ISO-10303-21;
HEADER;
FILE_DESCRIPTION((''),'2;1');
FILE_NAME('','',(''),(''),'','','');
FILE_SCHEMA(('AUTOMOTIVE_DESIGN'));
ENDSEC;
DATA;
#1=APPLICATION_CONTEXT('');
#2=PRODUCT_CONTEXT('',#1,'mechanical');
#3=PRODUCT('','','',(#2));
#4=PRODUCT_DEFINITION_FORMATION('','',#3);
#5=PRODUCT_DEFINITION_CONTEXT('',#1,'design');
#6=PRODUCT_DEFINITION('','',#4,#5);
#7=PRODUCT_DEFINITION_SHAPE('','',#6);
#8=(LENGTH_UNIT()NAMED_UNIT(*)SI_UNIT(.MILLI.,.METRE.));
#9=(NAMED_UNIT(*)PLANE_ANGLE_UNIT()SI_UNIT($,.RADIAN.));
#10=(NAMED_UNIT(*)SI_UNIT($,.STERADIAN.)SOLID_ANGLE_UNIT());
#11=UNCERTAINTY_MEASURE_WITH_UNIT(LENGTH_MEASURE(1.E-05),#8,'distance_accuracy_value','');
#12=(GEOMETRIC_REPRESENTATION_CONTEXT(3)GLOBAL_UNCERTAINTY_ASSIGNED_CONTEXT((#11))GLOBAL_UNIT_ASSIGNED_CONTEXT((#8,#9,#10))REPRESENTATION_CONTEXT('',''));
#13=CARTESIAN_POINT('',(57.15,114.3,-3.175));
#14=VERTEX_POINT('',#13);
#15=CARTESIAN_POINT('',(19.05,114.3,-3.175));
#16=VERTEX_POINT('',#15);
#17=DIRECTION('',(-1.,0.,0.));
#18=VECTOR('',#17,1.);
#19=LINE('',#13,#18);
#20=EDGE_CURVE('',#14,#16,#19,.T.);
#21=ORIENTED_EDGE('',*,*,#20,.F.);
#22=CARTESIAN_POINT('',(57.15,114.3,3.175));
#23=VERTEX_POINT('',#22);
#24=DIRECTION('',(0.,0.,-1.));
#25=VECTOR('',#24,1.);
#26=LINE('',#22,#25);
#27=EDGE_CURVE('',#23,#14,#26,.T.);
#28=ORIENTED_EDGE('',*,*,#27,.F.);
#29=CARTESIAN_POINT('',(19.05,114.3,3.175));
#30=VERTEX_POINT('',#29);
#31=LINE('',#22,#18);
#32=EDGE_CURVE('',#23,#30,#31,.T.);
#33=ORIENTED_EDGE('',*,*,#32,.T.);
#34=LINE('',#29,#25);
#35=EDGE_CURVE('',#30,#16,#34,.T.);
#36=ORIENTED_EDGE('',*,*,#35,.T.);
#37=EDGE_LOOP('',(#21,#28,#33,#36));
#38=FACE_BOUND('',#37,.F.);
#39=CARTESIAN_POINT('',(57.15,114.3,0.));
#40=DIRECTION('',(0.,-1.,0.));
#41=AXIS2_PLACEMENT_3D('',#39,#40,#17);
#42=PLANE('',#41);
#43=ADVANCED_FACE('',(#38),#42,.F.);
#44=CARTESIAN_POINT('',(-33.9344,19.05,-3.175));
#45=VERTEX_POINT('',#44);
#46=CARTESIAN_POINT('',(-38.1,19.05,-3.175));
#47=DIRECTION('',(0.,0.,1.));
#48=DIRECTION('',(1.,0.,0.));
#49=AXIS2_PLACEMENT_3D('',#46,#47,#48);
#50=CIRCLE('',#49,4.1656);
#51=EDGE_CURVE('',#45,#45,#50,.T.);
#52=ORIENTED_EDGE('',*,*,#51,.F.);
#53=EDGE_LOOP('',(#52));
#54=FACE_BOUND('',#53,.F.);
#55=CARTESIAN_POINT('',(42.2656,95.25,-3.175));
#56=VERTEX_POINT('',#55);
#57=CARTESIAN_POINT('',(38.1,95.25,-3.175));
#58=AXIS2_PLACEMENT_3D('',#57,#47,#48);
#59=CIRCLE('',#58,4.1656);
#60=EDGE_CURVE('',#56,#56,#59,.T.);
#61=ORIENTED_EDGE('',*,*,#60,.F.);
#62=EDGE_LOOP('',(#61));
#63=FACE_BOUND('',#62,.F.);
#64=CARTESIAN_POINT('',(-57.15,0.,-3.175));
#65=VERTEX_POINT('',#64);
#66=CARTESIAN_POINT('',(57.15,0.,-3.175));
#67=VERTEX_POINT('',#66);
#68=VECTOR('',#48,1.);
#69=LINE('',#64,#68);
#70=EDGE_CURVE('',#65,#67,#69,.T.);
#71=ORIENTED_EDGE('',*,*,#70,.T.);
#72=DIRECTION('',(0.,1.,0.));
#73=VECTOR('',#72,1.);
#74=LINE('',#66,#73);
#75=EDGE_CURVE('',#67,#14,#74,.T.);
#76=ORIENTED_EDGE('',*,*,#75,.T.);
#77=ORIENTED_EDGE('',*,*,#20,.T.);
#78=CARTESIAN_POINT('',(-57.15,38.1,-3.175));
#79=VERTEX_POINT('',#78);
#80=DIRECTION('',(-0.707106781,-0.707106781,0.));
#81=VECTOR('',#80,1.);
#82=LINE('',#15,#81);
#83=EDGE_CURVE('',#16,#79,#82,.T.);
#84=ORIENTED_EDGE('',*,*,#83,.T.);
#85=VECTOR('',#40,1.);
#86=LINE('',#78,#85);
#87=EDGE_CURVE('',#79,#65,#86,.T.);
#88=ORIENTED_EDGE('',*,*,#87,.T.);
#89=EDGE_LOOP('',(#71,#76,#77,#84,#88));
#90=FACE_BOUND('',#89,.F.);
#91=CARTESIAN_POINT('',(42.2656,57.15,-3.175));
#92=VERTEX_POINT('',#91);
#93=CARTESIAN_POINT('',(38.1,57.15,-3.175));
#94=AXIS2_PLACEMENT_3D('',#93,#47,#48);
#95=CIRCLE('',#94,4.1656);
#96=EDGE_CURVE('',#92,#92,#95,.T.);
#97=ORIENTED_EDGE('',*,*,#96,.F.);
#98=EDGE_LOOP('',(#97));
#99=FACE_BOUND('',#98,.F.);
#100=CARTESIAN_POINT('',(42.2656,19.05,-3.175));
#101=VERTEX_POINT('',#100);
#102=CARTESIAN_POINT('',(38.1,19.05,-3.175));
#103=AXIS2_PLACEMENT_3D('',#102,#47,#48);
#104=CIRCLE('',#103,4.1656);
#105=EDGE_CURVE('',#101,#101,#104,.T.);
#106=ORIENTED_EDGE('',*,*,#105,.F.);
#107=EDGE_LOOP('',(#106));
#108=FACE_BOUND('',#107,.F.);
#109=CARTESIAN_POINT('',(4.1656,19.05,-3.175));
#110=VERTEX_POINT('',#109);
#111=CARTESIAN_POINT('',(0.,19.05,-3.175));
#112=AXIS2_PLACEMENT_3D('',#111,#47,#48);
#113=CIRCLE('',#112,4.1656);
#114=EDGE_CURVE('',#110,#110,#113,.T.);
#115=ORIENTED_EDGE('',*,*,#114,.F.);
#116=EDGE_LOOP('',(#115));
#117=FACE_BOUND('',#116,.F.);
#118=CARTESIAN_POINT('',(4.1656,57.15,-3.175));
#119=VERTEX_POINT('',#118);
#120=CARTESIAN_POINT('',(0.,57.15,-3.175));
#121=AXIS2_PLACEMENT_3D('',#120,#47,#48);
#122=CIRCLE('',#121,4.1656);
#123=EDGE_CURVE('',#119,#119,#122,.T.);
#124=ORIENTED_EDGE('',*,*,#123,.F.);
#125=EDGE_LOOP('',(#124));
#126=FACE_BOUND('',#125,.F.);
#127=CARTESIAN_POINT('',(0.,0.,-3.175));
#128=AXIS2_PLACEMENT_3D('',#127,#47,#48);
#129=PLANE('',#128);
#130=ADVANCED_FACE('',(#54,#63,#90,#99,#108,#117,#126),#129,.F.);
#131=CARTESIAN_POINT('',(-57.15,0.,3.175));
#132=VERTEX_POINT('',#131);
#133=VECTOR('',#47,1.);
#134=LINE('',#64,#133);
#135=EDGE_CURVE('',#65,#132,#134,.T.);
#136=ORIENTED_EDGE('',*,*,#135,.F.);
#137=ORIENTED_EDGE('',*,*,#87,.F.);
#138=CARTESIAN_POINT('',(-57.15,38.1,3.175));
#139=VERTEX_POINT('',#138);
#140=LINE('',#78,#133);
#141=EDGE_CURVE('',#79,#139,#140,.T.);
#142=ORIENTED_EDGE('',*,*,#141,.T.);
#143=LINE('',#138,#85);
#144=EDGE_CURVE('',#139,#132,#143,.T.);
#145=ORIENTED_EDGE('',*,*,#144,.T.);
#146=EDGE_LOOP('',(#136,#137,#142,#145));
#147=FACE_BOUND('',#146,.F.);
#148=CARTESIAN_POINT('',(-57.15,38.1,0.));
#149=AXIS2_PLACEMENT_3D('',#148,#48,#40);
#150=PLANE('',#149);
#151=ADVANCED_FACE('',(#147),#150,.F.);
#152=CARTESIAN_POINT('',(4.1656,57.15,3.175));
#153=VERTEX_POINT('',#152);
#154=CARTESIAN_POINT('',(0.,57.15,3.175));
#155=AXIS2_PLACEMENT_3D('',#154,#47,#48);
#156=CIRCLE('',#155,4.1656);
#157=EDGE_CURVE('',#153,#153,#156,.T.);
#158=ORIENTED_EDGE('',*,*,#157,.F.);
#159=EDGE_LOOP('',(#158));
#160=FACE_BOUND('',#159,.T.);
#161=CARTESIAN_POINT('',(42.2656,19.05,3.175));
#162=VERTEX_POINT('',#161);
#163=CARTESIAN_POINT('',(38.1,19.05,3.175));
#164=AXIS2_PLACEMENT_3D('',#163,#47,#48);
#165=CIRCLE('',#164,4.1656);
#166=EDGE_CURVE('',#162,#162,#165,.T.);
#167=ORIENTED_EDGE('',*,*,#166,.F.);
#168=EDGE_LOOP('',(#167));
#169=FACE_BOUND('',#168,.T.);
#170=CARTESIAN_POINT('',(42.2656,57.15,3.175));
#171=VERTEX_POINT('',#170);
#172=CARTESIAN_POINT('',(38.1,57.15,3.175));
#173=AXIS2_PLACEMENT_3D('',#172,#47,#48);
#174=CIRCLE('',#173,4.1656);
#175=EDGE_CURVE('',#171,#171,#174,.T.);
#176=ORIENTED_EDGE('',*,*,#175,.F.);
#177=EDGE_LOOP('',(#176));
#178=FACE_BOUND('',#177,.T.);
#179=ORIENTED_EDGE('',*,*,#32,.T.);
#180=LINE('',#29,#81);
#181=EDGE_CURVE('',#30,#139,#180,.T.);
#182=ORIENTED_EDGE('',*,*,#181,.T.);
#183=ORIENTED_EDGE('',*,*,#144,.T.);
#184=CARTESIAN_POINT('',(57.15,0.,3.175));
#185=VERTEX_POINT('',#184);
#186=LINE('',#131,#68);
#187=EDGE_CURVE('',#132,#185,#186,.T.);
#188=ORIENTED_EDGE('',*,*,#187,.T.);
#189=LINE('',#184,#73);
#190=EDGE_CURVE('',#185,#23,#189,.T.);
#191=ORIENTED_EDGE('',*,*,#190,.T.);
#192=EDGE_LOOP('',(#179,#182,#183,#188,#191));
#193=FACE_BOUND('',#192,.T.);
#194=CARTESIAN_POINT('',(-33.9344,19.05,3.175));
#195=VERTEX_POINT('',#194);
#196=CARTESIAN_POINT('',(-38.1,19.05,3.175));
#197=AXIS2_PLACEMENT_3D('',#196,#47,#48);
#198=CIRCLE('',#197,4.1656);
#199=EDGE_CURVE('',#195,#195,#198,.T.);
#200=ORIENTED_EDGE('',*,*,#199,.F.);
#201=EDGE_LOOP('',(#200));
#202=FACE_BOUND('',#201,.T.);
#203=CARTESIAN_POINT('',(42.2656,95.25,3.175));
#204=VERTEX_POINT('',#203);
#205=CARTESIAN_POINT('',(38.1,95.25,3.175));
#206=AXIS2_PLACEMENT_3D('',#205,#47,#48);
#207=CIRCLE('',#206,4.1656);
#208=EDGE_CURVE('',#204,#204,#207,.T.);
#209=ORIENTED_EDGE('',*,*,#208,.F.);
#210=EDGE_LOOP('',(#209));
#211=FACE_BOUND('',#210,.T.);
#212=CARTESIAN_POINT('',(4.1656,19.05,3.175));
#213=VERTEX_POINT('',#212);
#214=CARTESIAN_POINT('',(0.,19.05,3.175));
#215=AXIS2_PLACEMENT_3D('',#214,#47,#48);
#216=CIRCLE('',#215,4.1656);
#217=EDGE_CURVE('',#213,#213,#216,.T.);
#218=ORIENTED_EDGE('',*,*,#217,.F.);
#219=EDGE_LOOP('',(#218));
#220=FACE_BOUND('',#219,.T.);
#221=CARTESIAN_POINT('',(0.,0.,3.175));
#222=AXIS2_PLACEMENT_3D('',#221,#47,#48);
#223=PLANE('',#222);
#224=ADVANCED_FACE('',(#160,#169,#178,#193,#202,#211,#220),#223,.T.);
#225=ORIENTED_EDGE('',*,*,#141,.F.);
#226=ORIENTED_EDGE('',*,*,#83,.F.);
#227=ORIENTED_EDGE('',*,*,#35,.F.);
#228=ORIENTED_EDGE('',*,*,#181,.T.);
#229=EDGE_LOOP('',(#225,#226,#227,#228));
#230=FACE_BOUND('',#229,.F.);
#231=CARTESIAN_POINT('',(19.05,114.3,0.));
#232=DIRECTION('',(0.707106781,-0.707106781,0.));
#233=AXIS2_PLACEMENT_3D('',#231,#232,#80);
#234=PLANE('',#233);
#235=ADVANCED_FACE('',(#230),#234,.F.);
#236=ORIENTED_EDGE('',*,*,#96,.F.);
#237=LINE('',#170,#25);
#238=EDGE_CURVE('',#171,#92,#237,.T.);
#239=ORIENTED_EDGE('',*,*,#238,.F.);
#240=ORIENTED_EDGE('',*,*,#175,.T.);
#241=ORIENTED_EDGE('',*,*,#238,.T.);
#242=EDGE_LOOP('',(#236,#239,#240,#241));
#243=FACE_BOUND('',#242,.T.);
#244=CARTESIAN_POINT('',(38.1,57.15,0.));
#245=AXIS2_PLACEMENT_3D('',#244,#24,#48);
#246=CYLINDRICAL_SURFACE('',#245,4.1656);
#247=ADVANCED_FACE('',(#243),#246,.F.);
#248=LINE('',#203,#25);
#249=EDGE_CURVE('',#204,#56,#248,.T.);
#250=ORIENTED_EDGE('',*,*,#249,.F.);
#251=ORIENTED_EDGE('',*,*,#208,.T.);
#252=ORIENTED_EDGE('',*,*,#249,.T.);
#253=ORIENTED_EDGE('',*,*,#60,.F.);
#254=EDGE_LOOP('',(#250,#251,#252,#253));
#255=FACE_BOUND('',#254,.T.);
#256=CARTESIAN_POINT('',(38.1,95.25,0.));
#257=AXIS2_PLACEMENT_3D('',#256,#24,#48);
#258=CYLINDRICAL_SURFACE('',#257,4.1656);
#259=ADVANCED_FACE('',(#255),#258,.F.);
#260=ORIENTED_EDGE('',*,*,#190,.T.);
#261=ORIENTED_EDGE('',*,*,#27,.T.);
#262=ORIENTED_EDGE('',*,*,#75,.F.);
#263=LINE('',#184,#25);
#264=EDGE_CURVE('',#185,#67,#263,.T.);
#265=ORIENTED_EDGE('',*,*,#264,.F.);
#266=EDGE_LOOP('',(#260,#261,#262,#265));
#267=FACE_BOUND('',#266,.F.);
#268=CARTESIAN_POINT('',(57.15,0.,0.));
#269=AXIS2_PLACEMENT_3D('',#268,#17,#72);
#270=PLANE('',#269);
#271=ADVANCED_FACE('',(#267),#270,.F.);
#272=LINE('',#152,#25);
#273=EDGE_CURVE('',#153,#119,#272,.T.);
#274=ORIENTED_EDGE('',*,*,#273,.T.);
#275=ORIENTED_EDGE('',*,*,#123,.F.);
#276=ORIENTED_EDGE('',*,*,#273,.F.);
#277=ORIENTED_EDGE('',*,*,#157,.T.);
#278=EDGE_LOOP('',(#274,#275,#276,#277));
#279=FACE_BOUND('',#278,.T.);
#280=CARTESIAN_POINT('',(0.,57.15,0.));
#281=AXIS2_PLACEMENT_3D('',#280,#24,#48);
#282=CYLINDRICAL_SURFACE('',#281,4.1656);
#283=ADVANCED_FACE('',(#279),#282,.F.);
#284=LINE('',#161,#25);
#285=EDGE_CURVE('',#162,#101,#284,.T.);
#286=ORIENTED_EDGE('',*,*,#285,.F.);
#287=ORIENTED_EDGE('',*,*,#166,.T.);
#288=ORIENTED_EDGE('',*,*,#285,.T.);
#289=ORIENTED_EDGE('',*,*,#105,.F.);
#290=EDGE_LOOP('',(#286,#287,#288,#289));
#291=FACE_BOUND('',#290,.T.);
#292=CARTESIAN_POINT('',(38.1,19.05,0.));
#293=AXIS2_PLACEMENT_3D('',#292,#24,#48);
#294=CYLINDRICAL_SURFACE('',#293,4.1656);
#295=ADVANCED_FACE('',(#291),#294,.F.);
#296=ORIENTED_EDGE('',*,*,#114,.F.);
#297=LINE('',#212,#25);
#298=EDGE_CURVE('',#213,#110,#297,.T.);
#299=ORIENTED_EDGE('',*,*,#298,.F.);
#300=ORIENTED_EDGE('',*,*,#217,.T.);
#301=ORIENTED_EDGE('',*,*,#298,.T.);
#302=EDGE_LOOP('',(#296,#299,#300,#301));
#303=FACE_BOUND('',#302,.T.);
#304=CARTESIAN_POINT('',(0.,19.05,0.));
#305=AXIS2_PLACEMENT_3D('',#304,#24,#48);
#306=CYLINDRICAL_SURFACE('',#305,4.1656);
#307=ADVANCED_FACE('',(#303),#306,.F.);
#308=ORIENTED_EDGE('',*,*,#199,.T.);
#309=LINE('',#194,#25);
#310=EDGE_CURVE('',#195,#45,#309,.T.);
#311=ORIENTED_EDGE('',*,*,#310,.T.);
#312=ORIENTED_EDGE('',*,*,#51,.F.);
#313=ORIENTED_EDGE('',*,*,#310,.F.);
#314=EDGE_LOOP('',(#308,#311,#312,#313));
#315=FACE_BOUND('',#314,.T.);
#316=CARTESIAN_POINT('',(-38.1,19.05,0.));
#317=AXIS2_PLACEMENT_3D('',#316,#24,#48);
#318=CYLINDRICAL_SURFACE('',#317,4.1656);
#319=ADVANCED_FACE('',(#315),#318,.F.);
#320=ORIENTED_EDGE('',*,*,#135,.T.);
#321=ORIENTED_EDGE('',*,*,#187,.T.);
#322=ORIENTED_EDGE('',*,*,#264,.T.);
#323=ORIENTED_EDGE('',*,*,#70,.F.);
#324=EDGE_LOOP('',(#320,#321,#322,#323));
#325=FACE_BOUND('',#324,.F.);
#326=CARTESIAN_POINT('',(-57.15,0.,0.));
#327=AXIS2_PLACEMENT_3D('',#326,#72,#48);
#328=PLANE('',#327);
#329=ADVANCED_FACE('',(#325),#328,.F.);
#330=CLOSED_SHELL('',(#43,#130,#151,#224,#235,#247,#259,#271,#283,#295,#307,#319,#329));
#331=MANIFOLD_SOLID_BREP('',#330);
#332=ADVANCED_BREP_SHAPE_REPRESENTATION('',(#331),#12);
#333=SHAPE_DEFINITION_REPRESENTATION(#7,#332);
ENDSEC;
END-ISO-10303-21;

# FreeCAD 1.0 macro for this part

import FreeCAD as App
import Part
import Sketcher

V = App.Vector
Q = App.Units.Quantity


def add_polygon(sketch, points):
    """Adds a closed chain of lines whose ends are joined by coincident constraints."""
    first, n = sketch.GeometryCount, len(points)
    for a, b in zip(points, points[1:] + points[:1]):
        sketch.addGeometry(Part.LineSegment(App.Vector(*a, 0), App.Vector(*b, 0)), False)
    for i in range(n):
        sketch.addConstraint(Sketcher.Constraint("Coincident", first + i, 2, first + (i + 1) % n, 1))

doc = App.newDocument("Part")
params = doc.addObject("Spreadsheet::Sheet", "Params")
for row, (alias, value) in enumerate([
    ("sketch1_diameter", "0.328 in"),
    ("sketch1_width", "4.5 in"),
    ("sketch1_width2", "1.5 in"),
    ("pad1_length", "0.25 in"),
], start=1):
    params.set(f"A{row}", alias)
    params.set(f"B{row}", "=" + value)
    params.setAlias(f"B{row}", alias)

body = doc.addObject("PartDesign::Body", "Body")

# Sketch on XY plane
sketch1 = body.newObject("Sketcher::SketchObject", "Sketch")
sketch1.AttachmentSupport = (doc.getObject("XY_Plane"), [""])
sketch1.MapMode = "FlatFace"
add_polygon(sketch1, [(19.1, 114.3), (-57.1, 38.1), (-57.1, 0), (57.1, 0), (57.1, 114.3)])  # lines 0-4
sketch1.addGeometry(Part.Circle(V(-38.1, 19.1, 0), V(0, 0, 1), 4.2), False)  # 5
sketch1.addGeometry(Part.Circle(V(0, 19.1, 0), V(0, 0, 1), 4.2), False)  # 6
sketch1.addGeometry(Part.Circle(V(38.1, 19.1, 0), V(0, 0, 1), 4.2), False)  # 7
sketch1.addGeometry(Part.Circle(V(0, 57.1, 0), V(0, 0, 1), 4.2), False)  # 8
sketch1.addGeometry(Part.Circle(V(38.1, 57.1, 0), V(0, 0, 1), 4.2), False)  # 9
sketch1.addGeometry(Part.Circle(V(38.1, 95.2, 0), V(0, 0, 1), 4.2), False)  # 10
sketch1.addConstraint([
    Sketcher.Constraint("Vertical", 1),
    Sketcher.Constraint("Horizontal", 2),
    Sketcher.Constraint("Vertical", 3),
    Sketcher.Constraint("Horizontal", 4),
    Sketcher.Constraint("Equal", 5, 6),
    Sketcher.Constraint("Equal", 6, 7),
    Sketcher.Constraint("Equal", 7, 8),
    Sketcher.Constraint("Equal", 8, 9),
    Sketcher.Constraint("Equal", 9, 10),
    Sketcher.Constraint("Symmetric", 1, 2, 2, 2, -1, 1),
    Sketcher.Constraint("Symmetric", 5, 3, 7, 3, -2),
    Sketcher.Constraint("PointOnObject", 6, 3, -2),
    Sketcher.Constraint("PointOnObject", 8, 3, -2),
    Sketcher.Constraint("Horizontal", 5, 3, 6, 3),
    Sketcher.Constraint("Horizontal", 8, 3, 9, 3),
    Sketcher.Constraint("Vertical", 7, 3, 9, 3),
    Sketcher.Constraint("Vertical", 9, 3, 10, 3),
    Sketcher.Constraint("Equal", 4, 1),
    Sketcher.Constraint("Equal", 2, 3),
    Sketcher.Constraint("Diameter", 5, Q("0.328 in")),
    Sketcher.Constraint("DistanceX", 2, 1, 2, 2, Q("4.5 in")),
    Sketcher.Constraint("DistanceX", 4, 2, 4, 1, Q("1.5 in")),
    Sketcher.Constraint("DistanceX", 5, 3, 7, 3, Q("3 in")),
    Sketcher.Constraint("DistanceY", 7, 3, 10, 3, Q("3 in")),
    Sketcher.Constraint("DistanceY", 6, 3, 8, 3, Q("1.5 in")),
    Sketcher.Constraint("DistanceY", -1, 1, 5, 3, Q("0.75 in")),
])
sketch1.setExpression("Constraints[24]", "Params.sketch1_diameter")
sketch1.setExpression("Constraints[25]", "Params.sketch1_width")
sketch1.setExpression("Constraints[26]", "Params.sketch1_width2")
pad1 = body.newObject("PartDesign::Pad", "Pad")
pad1.Profile = sketch1
pad1.setExpression("Length", "Params.pad1_length")
pad1.Midplane = True

doc.recompute()
